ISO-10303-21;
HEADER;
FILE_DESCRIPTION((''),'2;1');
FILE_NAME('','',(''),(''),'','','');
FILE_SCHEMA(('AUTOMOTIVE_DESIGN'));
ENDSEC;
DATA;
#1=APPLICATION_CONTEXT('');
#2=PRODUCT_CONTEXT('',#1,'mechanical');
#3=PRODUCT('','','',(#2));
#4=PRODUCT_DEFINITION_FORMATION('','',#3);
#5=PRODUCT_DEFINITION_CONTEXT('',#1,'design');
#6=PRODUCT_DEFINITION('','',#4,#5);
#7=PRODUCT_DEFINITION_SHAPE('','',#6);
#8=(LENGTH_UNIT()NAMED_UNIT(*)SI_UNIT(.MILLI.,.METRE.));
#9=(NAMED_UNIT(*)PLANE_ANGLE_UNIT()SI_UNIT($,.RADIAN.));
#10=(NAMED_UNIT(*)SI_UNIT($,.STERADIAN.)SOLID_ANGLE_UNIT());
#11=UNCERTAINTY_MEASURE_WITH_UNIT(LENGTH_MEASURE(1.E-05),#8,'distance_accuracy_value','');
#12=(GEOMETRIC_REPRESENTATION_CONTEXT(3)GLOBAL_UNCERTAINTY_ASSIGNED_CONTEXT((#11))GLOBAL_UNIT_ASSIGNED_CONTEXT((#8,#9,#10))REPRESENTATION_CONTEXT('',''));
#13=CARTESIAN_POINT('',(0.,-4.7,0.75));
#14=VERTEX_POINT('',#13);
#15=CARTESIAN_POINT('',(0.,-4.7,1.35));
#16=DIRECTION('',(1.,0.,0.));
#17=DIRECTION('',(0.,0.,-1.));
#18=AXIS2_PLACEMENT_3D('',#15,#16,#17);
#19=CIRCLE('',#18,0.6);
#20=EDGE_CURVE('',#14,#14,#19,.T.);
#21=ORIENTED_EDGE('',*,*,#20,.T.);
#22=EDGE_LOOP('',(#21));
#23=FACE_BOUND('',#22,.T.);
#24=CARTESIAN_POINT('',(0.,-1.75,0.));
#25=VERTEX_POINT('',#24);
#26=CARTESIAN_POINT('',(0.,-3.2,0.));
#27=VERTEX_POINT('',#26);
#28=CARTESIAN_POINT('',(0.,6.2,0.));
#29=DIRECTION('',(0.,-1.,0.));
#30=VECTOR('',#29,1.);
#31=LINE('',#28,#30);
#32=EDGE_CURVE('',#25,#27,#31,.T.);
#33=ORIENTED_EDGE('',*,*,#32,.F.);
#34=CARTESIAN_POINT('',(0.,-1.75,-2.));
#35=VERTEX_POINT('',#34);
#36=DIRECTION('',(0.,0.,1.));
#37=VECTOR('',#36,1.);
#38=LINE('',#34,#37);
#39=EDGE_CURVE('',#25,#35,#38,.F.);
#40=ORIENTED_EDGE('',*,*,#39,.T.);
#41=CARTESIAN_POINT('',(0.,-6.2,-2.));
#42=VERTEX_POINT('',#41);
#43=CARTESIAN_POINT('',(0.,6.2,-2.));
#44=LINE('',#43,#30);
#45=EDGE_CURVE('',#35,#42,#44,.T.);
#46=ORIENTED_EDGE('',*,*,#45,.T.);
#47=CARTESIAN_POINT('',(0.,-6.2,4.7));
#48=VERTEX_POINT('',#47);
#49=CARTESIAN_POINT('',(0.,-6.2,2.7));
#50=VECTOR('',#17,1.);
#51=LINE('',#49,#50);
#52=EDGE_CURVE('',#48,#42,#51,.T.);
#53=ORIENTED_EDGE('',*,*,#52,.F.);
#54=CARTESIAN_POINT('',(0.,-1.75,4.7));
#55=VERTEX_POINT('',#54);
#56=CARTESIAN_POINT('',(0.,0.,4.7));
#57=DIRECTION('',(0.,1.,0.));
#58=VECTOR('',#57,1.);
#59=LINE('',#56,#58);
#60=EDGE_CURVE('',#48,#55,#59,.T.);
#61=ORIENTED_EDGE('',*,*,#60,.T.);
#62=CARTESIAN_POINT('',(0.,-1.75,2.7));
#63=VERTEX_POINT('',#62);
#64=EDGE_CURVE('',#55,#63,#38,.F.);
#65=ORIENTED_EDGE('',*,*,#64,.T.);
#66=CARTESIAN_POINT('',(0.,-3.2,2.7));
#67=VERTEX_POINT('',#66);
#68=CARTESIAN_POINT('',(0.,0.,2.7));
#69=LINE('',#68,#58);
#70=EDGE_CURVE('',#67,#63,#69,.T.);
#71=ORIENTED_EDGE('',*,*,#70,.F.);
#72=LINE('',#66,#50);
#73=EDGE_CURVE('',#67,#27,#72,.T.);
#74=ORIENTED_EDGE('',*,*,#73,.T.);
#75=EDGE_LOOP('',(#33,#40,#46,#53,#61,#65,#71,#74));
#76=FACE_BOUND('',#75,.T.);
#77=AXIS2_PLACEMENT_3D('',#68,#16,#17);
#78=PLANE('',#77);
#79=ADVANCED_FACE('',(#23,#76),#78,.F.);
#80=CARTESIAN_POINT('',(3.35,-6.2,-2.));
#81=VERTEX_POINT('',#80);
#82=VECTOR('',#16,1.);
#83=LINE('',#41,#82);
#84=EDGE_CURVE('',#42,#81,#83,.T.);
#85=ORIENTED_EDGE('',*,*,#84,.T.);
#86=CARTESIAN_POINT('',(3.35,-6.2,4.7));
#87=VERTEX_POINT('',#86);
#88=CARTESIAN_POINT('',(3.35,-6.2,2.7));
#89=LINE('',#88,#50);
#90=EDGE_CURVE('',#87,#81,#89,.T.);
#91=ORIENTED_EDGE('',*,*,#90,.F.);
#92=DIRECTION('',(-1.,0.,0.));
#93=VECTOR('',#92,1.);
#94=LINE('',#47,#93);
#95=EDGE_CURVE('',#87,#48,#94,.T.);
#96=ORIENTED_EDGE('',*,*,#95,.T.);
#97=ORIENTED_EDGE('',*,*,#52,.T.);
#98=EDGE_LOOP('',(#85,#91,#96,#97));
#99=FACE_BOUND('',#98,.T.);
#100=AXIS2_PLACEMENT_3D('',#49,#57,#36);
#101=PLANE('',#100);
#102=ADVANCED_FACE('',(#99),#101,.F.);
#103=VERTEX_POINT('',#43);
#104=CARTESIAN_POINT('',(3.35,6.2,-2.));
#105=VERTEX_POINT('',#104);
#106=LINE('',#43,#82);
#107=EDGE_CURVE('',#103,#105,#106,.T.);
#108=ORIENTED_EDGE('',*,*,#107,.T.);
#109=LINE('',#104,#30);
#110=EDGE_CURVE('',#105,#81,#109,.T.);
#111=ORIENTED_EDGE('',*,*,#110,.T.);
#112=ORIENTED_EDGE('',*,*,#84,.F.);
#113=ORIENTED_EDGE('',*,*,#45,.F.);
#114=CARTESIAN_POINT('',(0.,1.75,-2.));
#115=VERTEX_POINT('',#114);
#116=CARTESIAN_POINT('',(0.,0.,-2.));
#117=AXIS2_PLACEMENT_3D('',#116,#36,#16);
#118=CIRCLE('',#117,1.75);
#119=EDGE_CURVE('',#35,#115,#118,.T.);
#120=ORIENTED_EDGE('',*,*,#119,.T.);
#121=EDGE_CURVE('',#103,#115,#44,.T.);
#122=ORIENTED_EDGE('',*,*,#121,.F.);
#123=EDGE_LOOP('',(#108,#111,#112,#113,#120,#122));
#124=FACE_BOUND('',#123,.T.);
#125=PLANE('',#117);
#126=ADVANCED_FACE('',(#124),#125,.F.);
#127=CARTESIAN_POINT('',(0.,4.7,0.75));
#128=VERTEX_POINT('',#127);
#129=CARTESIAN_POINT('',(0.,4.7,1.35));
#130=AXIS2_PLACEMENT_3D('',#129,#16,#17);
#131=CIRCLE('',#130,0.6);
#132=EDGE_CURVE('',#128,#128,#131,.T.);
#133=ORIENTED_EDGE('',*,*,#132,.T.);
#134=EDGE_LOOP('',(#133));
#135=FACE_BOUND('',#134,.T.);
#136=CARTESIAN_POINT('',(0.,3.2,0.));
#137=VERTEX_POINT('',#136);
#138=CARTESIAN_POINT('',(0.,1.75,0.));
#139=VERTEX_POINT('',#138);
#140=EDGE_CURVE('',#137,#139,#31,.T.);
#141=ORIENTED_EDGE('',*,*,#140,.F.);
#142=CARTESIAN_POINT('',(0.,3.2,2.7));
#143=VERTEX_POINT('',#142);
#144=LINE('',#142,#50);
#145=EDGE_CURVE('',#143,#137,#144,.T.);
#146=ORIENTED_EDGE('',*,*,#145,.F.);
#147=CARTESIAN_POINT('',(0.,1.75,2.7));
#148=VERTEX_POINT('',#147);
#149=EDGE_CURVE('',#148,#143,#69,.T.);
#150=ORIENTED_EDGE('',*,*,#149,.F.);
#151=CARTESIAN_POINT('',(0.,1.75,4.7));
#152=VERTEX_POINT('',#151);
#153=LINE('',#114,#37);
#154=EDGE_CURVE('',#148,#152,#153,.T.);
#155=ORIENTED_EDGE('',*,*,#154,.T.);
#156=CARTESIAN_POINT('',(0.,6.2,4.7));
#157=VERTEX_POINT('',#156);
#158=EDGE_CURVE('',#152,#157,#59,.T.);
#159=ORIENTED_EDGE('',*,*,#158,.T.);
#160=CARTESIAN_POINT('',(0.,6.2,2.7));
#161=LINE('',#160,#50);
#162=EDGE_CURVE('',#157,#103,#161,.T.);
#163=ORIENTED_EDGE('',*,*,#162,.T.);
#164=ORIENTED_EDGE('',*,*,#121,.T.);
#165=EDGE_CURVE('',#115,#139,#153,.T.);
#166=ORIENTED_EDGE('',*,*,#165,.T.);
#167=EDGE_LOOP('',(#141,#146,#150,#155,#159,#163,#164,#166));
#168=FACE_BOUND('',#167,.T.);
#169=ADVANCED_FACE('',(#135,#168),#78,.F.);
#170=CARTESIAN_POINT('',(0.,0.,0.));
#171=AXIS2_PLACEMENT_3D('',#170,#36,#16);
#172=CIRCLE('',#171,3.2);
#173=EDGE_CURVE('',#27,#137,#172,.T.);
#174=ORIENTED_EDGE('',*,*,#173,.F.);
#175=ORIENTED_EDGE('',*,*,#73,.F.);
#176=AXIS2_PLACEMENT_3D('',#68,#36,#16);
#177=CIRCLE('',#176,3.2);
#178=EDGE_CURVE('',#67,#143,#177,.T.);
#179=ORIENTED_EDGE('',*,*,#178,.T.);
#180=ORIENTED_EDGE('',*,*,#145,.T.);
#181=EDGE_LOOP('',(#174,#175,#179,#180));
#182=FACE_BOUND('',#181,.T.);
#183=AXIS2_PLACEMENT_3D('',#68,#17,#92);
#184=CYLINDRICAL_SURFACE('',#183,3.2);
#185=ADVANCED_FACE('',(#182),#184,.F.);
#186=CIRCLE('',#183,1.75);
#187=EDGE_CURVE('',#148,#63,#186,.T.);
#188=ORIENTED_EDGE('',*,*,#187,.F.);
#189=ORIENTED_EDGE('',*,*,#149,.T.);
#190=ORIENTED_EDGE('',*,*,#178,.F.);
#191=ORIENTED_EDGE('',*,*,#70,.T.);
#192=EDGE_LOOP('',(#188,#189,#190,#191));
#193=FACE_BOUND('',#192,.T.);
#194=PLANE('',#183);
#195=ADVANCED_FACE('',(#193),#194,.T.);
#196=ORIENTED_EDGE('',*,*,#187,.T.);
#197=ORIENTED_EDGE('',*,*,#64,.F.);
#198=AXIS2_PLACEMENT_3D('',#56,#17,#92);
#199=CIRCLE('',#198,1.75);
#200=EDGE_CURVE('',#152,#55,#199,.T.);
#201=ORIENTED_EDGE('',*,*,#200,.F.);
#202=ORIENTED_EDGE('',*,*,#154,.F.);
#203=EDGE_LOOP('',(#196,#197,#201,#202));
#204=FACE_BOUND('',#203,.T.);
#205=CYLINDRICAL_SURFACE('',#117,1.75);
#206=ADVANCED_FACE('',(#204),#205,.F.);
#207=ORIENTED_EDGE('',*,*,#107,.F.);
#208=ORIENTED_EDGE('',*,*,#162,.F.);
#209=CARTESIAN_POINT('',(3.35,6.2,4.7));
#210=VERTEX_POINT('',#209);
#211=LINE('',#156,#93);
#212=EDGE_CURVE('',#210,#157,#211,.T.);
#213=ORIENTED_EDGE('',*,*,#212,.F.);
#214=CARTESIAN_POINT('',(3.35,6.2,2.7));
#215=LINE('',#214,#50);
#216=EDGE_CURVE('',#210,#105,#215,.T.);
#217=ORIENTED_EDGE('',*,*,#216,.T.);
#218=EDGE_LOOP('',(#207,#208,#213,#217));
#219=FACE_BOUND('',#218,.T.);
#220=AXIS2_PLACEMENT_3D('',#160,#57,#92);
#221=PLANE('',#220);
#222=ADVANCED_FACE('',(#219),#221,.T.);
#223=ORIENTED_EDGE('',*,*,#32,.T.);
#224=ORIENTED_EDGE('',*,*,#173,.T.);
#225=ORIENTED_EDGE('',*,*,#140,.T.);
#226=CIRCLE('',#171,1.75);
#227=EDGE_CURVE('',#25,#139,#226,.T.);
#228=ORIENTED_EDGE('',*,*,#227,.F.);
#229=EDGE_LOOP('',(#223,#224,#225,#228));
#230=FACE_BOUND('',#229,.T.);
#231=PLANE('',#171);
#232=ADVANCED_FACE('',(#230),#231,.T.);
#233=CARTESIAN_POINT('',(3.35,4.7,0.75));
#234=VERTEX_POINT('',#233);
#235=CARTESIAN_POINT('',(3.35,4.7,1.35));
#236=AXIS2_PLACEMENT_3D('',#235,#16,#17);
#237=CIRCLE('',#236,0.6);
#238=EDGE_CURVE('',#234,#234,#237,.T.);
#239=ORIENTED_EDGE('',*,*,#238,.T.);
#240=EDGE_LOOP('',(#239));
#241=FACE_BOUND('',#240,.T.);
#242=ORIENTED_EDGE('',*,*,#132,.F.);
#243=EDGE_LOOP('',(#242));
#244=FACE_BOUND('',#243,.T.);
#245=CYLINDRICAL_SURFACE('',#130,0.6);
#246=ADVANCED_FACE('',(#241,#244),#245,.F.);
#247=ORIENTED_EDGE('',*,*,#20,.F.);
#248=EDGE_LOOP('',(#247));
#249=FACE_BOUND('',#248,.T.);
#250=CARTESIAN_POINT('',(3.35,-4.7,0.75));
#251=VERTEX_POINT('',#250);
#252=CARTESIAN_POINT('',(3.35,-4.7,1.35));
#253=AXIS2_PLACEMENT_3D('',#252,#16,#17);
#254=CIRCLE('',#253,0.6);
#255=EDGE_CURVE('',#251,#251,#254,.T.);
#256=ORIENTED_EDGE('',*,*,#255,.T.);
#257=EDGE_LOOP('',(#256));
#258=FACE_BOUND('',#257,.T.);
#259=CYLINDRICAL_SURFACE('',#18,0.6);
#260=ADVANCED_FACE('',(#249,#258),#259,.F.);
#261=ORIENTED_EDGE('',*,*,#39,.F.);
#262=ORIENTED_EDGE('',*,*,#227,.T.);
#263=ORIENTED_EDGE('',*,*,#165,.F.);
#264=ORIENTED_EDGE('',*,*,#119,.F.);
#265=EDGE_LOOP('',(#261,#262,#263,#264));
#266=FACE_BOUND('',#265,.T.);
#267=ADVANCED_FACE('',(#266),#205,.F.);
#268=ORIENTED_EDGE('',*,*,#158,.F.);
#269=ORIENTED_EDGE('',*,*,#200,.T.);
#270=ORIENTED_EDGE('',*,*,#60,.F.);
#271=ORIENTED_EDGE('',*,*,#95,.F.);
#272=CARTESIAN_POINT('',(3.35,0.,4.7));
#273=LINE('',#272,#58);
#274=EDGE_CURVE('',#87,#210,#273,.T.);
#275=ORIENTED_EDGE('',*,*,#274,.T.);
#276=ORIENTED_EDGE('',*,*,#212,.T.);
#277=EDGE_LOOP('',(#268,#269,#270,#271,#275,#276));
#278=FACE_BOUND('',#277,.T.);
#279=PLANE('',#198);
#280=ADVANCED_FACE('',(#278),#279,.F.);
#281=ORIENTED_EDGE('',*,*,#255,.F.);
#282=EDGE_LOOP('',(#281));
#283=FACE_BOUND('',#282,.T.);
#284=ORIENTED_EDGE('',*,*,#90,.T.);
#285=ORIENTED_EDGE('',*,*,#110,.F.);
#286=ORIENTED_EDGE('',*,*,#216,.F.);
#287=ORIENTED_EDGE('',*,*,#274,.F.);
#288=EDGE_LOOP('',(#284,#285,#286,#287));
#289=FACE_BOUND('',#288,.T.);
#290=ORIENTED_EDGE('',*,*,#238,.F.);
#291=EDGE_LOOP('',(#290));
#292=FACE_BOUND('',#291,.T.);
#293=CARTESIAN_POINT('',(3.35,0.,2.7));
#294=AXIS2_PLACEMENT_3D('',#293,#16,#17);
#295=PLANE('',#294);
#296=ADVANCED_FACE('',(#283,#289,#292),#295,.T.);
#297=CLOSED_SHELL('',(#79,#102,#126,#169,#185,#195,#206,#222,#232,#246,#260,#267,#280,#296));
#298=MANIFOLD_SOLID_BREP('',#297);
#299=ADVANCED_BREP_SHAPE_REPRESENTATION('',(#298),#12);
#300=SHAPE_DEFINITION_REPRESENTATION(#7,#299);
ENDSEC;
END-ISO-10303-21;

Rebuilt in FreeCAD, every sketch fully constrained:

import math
import FreeCAD as App
import Part
import Sketcher
from FreeCAD import Vector
Q = App.Units.Quantity


def add_polygon(sketch, points):
    """Adds a closed chain of lines whose ends are joined by coincident constraints."""
    first, n = sketch.GeometryCount, len(points)
    for a, b in zip(points, points[1:] + points[:1]):
        sketch.addGeometry(Part.LineSegment(App.Vector(*a, 0), App.Vector(*b, 0)), False)
    for i in range(n):
        sketch.addConstraint(Sketcher.Constraint("Coincident", first + i, 2, first + (i + 1) % n, 1))

doc = App.newDocument("Part")
body = doc.addObject("PartDesign::Body", "Body")

# Sketch on XY plane
sketch1 = body.newObject("Sketcher::SketchObject", "Sketch")
sketch1.AttachmentSupport = (doc.getObject("XY_Plane"), [""])
sketch1.MapMode = "FlatFace"
sketch1.addGeometry([
    Part.LineSegment(Vector(3.4, 6.2, 0), Vector(0, 6.2, 0)),  # 0
    Part.LineSegment(Vector(0, 6.2, 0), Vector(0, 3.2, 0)),  # 1
    Part.ArcOfCircle(Part.Circle(Vector(0, 0, 0), Vector(0, 0, 1), 3.2), math.radians(0), math.radians(90)),  # 2
    Part.ArcOfCircle(Part.Circle(Vector(0, 0, 0), Vector(0, 0, 1), 3.2), math.radians(-90), math.radians(0)),  # 3
    Part.LineSegment(Vector(0, -3.2, 0), Vector(0, -6.2, 0)),  # 4
    Part.LineSegment(Vector(0, -6.2, 0), Vector(3.4, -6.2, 0)),  # 5
    Part.LineSegment(Vector(3.4, -6.2, 0), Vector(3.4, 6.2, 0)),  # 6
], False)
sketch1.addConstraint([
    Sketcher.Constraint("Coincident", 0, 2, 1, 1),
    Sketcher.Constraint("Coincident", 1, 2, 2, 2),
    Sketcher.Constraint("Tangent", 2, 1, 3, 2),
    Sketcher.Constraint("Coincident", 3, 1, 4, 1),
    Sketcher.Constraint("Coincident", 4, 2, 5, 1),
    Sketcher.Constraint("Coincident", 5, 2, 6, 1),
    Sketcher.Constraint("Coincident", 6, 2, 0, 1),
    Sketcher.Constraint("Horizontal", 0),
    Sketcher.Constraint("Vertical", 1),
    Sketcher.Constraint("Vertical", 4),
    Sketcher.Constraint("Horizontal", 5),
    Sketcher.Constraint("Vertical", 6),
    Sketcher.Constraint("Coincident", 2, 3, -1, 1),
    Sketcher.Constraint("Equal", 2, 3),
    Sketcher.Constraint("Symmetric", 0, 2, 4, 2, -1, 1),
    Sketcher.Constraint("PointOnObject", 0, 2, -2),
    Sketcher.Constraint("PointOnObject", 2, 1, -1),
    Sketcher.Constraint("Radius", 2, Q("3.2 mm")),
    Sketcher.Constraint("DistanceY", 1, 2, 1, 1, Q("3 mm")),
    Sketcher.Constraint("DistanceX", 0, 2, 0, 1, Q("3.35 mm")),
])
pad1 = body.newObject("PartDesign::Pad", "Pad")
pad1.Profile = sketch1
pad1.Length = 2.7

# Sketch on XY plane
sketch2 = body.newObject("Sketcher::SketchObject", "Sketch001")
sketch2.AttachmentSupport = (doc.getObject("XY_Plane"), [""])
sketch2.MapMode = "FlatFace"
add_polygon(sketch2, [(0, 6.2), (0, -6.2), (3.4, -6.2), (3.4, 6.2)])  # lines 0-3
sketch2.addConstraint([
    Sketcher.Constraint("Vertical", 0),
    Sketcher.Constraint("Horizontal", 1),
    Sketcher.Constraint("Vertical", 2),
    Sketcher.Constraint("Horizontal", 3),
    Sketcher.Constraint("Symmetric", 0, 2, 3, 2, -1, 1),
    Sketcher.Constraint("DistanceY", 0, 2, 0, 1, Q("12.4 mm")),
    Sketcher.Constraint("DistanceX", 1, 1, 1, 2, Q("3.35 mm")),
])
pad2 = body.newObject("PartDesign::Pad", "Pad001")
pad2.Profile = sketch2
pad2.Length = 2
pad2.Reversed = True

# Sketch on XY plane
sketch3 = body.newObject("Sketcher::SketchObject", "Sketch002")
sketch3.AttachmentSupport = (doc.getObject("XY_Plane"), [""])
sketch3.MapMode = "FlatFace"
sketch3.AttachmentOffset = App.Placement(Vector(0, 0, 2.7), App.Rotation())
add_polygon(sketch3, [(0, 6.2), (0, -6.2), (3.4, -6.2), (3.4, 6.2)])  # lines 0-3
sketch3.addConstraint([
    Sketcher.Constraint("Vertical", 0),
    Sketcher.Constraint("Horizontal", 1),
    Sketcher.Constraint("Vertical", 2),
    Sketcher.Constraint("Horizontal", 3),
    Sketcher.Constraint("Symmetric", 0, 2, 3, 2, -1, 1),
    Sketcher.Constraint("DistanceY", 0, 2, 0, 1, Q("12.4 mm")),
    Sketcher.Constraint("DistanceX", 1, 1, 1, 2, Q("3.35 mm")),
])
pad3 = body.newObject("PartDesign::Pad", "Pad002")
pad3.Profile = sketch3
pad3.Length = 2

# Sketch on XY plane
sketch4 = body.newObject("Sketcher::SketchObject", "Sketch003")
sketch4.AttachmentSupport = (doc.getObject("XY_Plane"), [""])
sketch4.MapMode = "FlatFace"
sketch4.AttachmentOffset = App.Placement(Vector(0, 0, 4.7), App.Rotation())
sketch4.addGeometry(Part.Circle(Vector(0, 0, 0), Vector(0, 0, 1), 1.8), False)
sketch4.addConstraint([
    Sketcher.Constraint("Coincident", 0, 3, -1, 1),
    Sketcher.Constraint("Diameter", 0, Q("3.5 mm")),
])
pocket1 = body.newObject("PartDesign::Pocket", "Pocket")
pocket1.Profile = sketch4
pocket1.Type = "ThroughAll"

# Sketch on YZ plane
sketch5 = body.newObject("Sketcher::SketchObject", "Sketch004")
sketch5.AttachmentSupport = (doc.getObject("YZ_Plane"), [""])
sketch5.MapMode = "FlatFace"
sketch5.AttachmentOffset = App.Placement(Vector(0, 0, 3.35), App.Rotation())
sketch5.addGeometry([
    Part.Circle(Vector(-4.7, 1.4, 0), Vector(0, 0, 1), 0.6),
    Part.Circle(Vector(4.7, 1.4, 0), Vector(0, 0, 1), 0.6),
], False)
sketch5.addConstraint([
    Sketcher.Constraint("Equal", 0, 1),
    Sketcher.Constraint("Symmetric", 0, 3, 1, 3, -2),
    Sketcher.Constraint("Diameter", 0, Q("1.2 mm")),
    Sketcher.Constraint("DistanceX", 0, 3, -1, 1, Q("4.7 mm")),
    Sketcher.Constraint("DistanceY", -1, 1, 0, 3, Q("1.35 mm")),
])
pocket2 = body.newObject("PartDesign::Pocket", "Pocket001")
pocket2.Profile = sketch5
pocket2.Type = "ThroughAll"

doc.recompute()
